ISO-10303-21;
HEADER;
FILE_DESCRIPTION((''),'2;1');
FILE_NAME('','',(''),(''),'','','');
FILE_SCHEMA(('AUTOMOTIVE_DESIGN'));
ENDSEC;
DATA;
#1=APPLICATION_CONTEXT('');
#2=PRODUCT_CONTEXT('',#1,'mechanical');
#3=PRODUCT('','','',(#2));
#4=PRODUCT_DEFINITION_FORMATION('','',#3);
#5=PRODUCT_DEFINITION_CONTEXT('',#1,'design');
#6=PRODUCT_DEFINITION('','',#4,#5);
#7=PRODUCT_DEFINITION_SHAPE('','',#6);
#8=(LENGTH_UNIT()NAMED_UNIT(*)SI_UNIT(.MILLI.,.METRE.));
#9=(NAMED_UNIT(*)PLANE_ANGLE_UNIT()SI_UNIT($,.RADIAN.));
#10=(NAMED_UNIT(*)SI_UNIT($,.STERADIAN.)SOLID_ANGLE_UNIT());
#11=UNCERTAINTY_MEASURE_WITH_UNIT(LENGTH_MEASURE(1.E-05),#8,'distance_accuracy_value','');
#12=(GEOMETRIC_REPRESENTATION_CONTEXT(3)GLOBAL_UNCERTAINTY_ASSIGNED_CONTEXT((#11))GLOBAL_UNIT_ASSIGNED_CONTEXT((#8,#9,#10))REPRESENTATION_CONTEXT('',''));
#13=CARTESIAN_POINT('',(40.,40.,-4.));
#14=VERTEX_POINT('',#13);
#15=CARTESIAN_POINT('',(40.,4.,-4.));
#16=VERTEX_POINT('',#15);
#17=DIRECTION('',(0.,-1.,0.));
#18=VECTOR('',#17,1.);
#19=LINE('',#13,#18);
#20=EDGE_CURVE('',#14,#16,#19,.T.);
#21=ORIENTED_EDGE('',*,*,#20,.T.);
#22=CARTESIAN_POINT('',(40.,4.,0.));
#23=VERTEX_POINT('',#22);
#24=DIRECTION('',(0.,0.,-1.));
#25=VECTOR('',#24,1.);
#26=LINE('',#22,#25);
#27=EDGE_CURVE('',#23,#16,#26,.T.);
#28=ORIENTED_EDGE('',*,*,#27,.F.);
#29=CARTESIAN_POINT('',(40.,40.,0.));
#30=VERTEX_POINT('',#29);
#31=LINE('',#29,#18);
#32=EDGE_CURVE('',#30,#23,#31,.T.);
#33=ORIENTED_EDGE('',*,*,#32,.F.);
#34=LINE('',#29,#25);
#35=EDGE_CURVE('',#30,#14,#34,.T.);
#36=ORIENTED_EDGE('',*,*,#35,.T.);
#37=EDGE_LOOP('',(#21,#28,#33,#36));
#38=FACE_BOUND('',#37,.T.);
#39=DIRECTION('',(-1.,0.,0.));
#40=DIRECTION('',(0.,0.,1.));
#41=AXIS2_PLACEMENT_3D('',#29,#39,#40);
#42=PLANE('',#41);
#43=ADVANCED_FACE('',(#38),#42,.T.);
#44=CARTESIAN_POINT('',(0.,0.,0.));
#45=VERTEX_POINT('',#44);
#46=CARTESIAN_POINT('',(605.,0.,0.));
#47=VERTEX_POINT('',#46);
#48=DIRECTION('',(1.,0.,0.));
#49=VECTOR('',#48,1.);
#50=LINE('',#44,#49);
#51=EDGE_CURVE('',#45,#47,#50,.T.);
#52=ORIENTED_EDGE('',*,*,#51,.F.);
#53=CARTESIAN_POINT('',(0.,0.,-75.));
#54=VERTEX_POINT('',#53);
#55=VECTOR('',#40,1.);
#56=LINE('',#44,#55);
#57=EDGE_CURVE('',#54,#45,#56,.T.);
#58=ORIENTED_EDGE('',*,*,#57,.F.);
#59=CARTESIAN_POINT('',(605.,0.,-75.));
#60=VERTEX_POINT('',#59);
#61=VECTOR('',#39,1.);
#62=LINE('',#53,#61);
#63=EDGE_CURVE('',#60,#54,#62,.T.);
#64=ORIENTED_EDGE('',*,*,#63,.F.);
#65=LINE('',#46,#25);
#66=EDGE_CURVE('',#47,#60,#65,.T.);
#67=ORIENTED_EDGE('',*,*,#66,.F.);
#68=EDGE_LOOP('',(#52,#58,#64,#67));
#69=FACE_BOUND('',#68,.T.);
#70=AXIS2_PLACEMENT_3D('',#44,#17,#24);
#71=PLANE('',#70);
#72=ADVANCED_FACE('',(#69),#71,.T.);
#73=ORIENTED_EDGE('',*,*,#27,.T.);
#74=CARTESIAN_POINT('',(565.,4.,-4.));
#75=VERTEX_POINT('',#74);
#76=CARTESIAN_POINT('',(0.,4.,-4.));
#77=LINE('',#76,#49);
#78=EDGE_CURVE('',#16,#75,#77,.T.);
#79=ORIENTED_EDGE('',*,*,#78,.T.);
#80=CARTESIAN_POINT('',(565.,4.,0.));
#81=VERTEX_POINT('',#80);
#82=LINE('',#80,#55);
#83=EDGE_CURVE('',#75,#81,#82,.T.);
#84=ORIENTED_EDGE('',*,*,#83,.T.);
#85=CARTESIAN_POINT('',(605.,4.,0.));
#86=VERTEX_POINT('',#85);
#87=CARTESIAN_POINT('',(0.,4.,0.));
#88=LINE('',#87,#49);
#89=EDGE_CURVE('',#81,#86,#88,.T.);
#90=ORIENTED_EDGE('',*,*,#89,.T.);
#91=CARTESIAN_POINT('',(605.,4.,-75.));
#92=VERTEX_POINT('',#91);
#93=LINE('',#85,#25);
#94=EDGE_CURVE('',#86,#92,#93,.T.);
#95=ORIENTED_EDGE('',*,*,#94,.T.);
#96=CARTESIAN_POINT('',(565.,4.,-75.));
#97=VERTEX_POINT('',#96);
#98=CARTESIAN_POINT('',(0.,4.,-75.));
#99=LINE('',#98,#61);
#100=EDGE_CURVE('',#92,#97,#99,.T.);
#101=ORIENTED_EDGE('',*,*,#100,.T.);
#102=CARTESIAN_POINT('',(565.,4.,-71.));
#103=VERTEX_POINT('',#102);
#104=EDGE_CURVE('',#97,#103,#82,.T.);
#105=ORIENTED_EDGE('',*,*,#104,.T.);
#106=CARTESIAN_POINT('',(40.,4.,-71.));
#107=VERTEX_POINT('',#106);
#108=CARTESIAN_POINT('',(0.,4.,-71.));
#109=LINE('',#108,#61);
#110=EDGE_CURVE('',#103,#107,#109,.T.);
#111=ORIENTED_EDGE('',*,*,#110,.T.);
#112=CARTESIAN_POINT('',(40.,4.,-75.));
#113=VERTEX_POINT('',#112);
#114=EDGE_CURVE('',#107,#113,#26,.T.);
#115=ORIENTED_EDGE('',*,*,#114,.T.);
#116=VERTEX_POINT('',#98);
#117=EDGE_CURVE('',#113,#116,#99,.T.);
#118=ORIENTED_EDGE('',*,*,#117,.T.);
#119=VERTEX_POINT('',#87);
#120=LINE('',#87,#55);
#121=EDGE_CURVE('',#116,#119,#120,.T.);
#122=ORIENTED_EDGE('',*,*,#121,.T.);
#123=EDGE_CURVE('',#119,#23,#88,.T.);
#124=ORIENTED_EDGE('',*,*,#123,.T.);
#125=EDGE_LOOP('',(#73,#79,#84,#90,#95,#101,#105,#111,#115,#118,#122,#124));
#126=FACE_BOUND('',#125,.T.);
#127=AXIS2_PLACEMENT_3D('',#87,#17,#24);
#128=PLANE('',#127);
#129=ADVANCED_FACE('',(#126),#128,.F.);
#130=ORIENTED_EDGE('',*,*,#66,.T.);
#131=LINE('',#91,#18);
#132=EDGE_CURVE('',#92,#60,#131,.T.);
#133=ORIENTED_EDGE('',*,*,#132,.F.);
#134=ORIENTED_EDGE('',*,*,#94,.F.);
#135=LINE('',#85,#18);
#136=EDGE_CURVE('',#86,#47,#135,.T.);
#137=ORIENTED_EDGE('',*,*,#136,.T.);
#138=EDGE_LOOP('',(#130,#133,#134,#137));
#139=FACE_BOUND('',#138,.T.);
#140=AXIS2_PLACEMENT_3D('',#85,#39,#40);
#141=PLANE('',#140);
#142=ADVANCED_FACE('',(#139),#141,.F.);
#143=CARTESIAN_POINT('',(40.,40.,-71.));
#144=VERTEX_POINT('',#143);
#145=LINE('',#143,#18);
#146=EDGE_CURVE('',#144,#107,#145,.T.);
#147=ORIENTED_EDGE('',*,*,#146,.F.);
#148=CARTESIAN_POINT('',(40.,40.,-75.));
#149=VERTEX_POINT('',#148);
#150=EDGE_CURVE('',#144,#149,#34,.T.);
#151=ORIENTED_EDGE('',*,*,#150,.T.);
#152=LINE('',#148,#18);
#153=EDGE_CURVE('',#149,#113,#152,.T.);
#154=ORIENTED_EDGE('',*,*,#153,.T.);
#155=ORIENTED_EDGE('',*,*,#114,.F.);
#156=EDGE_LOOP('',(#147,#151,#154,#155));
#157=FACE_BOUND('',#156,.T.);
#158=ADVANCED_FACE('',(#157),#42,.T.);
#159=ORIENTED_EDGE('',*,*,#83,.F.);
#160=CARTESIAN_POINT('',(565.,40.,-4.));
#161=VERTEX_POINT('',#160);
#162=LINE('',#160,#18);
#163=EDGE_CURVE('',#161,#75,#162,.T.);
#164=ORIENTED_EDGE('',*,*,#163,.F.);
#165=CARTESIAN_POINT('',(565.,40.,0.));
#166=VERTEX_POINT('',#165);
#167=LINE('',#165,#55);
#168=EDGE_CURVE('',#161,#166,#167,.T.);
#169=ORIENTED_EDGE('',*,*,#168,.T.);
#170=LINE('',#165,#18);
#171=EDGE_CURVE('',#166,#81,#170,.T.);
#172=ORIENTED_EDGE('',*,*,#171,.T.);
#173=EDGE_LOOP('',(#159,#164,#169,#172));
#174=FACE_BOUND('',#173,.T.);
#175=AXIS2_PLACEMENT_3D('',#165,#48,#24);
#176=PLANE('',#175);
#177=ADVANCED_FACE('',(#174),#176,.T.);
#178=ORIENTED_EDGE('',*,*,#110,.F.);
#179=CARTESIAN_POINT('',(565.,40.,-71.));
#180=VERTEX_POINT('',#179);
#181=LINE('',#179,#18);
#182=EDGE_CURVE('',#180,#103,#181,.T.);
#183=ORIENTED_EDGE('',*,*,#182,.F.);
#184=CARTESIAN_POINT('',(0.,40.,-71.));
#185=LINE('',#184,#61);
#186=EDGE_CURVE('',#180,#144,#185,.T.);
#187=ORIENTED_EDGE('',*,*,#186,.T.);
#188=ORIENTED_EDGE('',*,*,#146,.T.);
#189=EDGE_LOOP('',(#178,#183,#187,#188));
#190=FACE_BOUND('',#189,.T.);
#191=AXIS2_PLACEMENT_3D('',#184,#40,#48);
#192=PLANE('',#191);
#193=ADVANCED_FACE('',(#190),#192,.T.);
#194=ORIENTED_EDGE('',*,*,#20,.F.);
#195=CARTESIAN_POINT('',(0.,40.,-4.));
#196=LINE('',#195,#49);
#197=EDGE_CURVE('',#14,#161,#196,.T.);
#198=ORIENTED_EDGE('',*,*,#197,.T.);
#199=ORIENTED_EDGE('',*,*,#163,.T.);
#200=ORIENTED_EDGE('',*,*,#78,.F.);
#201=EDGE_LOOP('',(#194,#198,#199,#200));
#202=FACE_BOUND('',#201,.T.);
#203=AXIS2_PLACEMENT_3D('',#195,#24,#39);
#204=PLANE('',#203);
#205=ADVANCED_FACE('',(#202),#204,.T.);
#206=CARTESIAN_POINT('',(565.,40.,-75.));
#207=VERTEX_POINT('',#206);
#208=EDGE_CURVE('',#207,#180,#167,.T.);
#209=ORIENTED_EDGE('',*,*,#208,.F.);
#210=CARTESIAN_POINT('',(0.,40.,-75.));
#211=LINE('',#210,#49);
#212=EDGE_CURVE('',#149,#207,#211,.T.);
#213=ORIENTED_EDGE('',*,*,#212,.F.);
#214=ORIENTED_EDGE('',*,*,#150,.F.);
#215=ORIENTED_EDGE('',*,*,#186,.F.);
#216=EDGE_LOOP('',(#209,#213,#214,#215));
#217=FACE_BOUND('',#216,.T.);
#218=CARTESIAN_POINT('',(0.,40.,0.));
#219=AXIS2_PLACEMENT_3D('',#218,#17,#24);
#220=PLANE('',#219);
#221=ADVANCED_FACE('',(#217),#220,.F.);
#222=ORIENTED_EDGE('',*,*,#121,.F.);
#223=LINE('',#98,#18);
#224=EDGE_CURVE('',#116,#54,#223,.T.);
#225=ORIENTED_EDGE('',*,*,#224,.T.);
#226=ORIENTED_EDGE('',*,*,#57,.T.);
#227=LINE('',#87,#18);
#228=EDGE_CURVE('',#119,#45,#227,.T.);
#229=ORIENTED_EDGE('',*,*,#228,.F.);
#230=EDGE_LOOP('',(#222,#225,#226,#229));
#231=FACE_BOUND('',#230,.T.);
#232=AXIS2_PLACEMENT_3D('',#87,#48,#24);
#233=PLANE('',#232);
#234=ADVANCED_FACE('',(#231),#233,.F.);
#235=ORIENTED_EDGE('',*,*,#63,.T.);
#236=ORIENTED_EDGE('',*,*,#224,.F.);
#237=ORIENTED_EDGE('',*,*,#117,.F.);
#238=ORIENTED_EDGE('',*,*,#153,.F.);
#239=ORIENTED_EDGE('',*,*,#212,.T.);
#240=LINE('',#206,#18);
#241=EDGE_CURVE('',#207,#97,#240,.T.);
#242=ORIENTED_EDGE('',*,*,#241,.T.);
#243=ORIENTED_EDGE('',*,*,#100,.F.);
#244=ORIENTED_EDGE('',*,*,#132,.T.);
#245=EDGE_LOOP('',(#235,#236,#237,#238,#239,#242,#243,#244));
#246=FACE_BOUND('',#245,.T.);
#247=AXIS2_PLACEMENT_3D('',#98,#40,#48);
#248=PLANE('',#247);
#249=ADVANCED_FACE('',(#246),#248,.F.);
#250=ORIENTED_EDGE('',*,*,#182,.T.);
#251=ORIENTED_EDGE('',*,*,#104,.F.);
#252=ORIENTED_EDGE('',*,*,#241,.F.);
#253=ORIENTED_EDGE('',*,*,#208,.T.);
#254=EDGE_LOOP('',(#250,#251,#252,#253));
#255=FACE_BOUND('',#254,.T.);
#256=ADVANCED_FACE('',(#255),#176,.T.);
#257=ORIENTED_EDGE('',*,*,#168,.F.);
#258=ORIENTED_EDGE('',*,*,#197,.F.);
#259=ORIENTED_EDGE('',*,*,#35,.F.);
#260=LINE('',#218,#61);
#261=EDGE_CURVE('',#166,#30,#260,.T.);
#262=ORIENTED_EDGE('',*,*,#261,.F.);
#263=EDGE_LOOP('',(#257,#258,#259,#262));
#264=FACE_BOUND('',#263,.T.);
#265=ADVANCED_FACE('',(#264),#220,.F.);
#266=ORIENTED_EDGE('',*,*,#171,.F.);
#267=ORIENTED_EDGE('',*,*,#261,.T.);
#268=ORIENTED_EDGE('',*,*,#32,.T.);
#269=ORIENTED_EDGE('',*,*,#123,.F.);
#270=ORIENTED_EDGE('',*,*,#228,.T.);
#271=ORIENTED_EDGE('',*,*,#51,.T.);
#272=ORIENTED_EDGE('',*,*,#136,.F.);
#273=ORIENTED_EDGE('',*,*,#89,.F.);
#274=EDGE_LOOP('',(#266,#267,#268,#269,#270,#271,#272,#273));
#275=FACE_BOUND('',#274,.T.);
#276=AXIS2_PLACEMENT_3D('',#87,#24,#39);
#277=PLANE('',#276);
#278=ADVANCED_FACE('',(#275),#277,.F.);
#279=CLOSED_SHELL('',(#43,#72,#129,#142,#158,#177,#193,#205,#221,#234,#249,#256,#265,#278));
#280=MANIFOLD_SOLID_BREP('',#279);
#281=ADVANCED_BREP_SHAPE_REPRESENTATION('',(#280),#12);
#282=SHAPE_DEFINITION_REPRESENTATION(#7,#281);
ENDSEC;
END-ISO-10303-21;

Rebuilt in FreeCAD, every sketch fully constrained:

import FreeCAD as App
import Part
import Sketcher
from FreeCAD import Vector
Q = App.Units.Quantity

doc = App.newDocument("Part")
body = doc.addObject("PartDesign::Body", "Body")

# Sketch on XZ plane
sketch1 = body.newObject("Sketcher::SketchObject", "Sketch")
sketch1.AttachmentSupport = (doc.getObject("XZ_Plane"), [""])
sketch1.MapMode = "FlatFace"
sketch1.addGeometry(Part.LineSegment(Vector(0, -75, 0), Vector(0, 0, 0)), False)
sketch1.addGeometry(Part.LineSegment(Vector(0, 0, 0), Vector(605, 0, 0)), False)
sketch1.addGeometry(Part.LineSegment(Vector(605, 0, 0), Vector(605, -75, 0)), False)
sketch1.addGeometry(Part.LineSegment(Vector(605, -75, 0), Vector(0, -75, 0)), False)
sketch1.addConstraint(Sketcher.Constraint("Coincident", 0, 2, 1, 1))
sketch1.addConstraint(Sketcher.Constraint("Coincident", 1, 2, 2, 1))
sketch1.addConstraint(Sketcher.Constraint("Coincident", 2, 2, 3, 1))
sketch1.addConstraint(Sketcher.Constraint("Coincident", 3, 2, 0, 1))
sketch1.addConstraint(Sketcher.Constraint("Vertical", 0))
sketch1.addConstraint(Sketcher.Constraint("Horizontal", 1))
sketch1.addConstraint(Sketcher.Constraint("Vertical", 2))
sketch1.addConstraint(Sketcher.Constraint("Horizontal", 3))
sketch1.addConstraint(Sketcher.Constraint("Coincident", 0, 2, -1, 1))
sketch1.addConstraint(Sketcher.Constraint("DistanceX", 1, 1, 1, 2, Q("605 mm")))
sketch1.addConstraint(Sketcher.Constraint("DistanceY", 0, 1, 0, 2, Q("75 mm")))
pad1 = body.newObject("PartDesign::Pad", "Pad")
pad1.Profile = sketch1
pad1.Length = 4
pad1.Reversed = True

# Sketch on XZ plane
sketch2 = body.newObject("Sketcher::SketchObject", "Sketch001")
sketch2.AttachmentSupport = (doc.getObject("XZ_Plane"), [""])
sketch2.MapMode = "FlatFace"
sketch2.addGeometry(Part.LineSegment(Vector(40, -4, 0), Vector(40, 0, 0)), False)
sketch2.addGeometry(Part.LineSegment(Vector(40, 0, 0), Vector(565, 0, 0)), False)
sketch2.addGeometry(Part.LineSegment(Vector(565, 0, 0), Vector(565, -4, 0)), False)
sketch2.addGeometry(Part.LineSegment(Vector(565, -4, 0), Vector(40, -4, 0)), False)
sketch2.addGeometry(Part.LineSegment(Vector(40, -75, 0), Vector(40, -71, 0)), False)
sketch2.addGeometry(Part.LineSegment(Vector(40, -71, 0), Vector(565, -71, 0)), False)
sketch2.addGeometry(Part.LineSegment(Vector(565, -71, 0), Vector(565, -75, 0)), False)
sketch2.addGeometry(Part.LineSegment(Vector(565, -75, 0), Vector(40, -75, 0)), False)
sketch2.addConstraint(Sketcher.Constraint("Coincident", 0, 2, 1, 1))
sketch2.addConstraint(Sketcher.Constraint("Coincident", 1, 2, 2, 1))
sketch2.addConstraint(Sketcher.Constraint("Coincident", 2, 2, 3, 1))
sketch2.addConstraint(Sketcher.Constraint("Coincident", 3, 2, 0, 1))
sketch2.addConstraint(Sketcher.Constraint("Coincident", 4, 2, 5, 1))
sketch2.addConstraint(Sketcher.Constraint("Coincident", 5, 2, 6, 1))
sketch2.addConstraint(Sketcher.Constraint("Coincident", 6, 2, 7, 1))
sketch2.addConstraint(Sketcher.Constraint("Coincident", 7, 2, 4, 1))
sketch2.addConstraint(Sketcher.Constraint("Vertical", 0))
sketch2.addConstraint(Sketcher.Constraint("Horizontal", 1))
sketch2.addConstraint(Sketcher.Constraint("Vertical", 2))
sketch2.addConstraint(Sketcher.Constraint("Horizontal", 3))
sketch2.addConstraint(Sketcher.Constraint("Vertical", 4))
sketch2.addConstraint(Sketcher.Constraint("Horizontal", 5))
sketch2.addConstraint(Sketcher.Constraint("Vertical", 6))
sketch2.addConstraint(Sketcher.Constraint("Horizontal", 7))
sketch2.addConstraint(Sketcher.Constraint("PointOnObject", 0, 2, -1))
sketch2.addConstraint(Sketcher.Constraint("Vertical", 3, 2, 4, 2))
sketch2.addConstraint(Sketcher.Constraint("Vertical", 2, 2, 5, 2))
sketch2.addConstraint(Sketcher.Constraint("Equal", 2, 4))
sketch2.addConstraint(Sketcher.Constraint("DistanceX", 1, 1, 1, 2, Q("525 mm")))
sketch2.addConstraint(Sketcher.Constraint("DistanceY", 0, 1, 0, 2, Q("4 mm")))
sketch2.addConstraint(Sketcher.Constraint("DistanceX", -1, 1, 0, 2, Q("40 mm")))
sketch2.addConstraint(Sketcher.Constraint("DistanceY", 4, 2, -1, 1, Q("71 mm")))
pad2 = body.newObject("PartDesign::Pad", "Pad001")
pad2.Profile = sketch2
pad2.Length = 40
pad2.Reversed = True

doc.recompute()
